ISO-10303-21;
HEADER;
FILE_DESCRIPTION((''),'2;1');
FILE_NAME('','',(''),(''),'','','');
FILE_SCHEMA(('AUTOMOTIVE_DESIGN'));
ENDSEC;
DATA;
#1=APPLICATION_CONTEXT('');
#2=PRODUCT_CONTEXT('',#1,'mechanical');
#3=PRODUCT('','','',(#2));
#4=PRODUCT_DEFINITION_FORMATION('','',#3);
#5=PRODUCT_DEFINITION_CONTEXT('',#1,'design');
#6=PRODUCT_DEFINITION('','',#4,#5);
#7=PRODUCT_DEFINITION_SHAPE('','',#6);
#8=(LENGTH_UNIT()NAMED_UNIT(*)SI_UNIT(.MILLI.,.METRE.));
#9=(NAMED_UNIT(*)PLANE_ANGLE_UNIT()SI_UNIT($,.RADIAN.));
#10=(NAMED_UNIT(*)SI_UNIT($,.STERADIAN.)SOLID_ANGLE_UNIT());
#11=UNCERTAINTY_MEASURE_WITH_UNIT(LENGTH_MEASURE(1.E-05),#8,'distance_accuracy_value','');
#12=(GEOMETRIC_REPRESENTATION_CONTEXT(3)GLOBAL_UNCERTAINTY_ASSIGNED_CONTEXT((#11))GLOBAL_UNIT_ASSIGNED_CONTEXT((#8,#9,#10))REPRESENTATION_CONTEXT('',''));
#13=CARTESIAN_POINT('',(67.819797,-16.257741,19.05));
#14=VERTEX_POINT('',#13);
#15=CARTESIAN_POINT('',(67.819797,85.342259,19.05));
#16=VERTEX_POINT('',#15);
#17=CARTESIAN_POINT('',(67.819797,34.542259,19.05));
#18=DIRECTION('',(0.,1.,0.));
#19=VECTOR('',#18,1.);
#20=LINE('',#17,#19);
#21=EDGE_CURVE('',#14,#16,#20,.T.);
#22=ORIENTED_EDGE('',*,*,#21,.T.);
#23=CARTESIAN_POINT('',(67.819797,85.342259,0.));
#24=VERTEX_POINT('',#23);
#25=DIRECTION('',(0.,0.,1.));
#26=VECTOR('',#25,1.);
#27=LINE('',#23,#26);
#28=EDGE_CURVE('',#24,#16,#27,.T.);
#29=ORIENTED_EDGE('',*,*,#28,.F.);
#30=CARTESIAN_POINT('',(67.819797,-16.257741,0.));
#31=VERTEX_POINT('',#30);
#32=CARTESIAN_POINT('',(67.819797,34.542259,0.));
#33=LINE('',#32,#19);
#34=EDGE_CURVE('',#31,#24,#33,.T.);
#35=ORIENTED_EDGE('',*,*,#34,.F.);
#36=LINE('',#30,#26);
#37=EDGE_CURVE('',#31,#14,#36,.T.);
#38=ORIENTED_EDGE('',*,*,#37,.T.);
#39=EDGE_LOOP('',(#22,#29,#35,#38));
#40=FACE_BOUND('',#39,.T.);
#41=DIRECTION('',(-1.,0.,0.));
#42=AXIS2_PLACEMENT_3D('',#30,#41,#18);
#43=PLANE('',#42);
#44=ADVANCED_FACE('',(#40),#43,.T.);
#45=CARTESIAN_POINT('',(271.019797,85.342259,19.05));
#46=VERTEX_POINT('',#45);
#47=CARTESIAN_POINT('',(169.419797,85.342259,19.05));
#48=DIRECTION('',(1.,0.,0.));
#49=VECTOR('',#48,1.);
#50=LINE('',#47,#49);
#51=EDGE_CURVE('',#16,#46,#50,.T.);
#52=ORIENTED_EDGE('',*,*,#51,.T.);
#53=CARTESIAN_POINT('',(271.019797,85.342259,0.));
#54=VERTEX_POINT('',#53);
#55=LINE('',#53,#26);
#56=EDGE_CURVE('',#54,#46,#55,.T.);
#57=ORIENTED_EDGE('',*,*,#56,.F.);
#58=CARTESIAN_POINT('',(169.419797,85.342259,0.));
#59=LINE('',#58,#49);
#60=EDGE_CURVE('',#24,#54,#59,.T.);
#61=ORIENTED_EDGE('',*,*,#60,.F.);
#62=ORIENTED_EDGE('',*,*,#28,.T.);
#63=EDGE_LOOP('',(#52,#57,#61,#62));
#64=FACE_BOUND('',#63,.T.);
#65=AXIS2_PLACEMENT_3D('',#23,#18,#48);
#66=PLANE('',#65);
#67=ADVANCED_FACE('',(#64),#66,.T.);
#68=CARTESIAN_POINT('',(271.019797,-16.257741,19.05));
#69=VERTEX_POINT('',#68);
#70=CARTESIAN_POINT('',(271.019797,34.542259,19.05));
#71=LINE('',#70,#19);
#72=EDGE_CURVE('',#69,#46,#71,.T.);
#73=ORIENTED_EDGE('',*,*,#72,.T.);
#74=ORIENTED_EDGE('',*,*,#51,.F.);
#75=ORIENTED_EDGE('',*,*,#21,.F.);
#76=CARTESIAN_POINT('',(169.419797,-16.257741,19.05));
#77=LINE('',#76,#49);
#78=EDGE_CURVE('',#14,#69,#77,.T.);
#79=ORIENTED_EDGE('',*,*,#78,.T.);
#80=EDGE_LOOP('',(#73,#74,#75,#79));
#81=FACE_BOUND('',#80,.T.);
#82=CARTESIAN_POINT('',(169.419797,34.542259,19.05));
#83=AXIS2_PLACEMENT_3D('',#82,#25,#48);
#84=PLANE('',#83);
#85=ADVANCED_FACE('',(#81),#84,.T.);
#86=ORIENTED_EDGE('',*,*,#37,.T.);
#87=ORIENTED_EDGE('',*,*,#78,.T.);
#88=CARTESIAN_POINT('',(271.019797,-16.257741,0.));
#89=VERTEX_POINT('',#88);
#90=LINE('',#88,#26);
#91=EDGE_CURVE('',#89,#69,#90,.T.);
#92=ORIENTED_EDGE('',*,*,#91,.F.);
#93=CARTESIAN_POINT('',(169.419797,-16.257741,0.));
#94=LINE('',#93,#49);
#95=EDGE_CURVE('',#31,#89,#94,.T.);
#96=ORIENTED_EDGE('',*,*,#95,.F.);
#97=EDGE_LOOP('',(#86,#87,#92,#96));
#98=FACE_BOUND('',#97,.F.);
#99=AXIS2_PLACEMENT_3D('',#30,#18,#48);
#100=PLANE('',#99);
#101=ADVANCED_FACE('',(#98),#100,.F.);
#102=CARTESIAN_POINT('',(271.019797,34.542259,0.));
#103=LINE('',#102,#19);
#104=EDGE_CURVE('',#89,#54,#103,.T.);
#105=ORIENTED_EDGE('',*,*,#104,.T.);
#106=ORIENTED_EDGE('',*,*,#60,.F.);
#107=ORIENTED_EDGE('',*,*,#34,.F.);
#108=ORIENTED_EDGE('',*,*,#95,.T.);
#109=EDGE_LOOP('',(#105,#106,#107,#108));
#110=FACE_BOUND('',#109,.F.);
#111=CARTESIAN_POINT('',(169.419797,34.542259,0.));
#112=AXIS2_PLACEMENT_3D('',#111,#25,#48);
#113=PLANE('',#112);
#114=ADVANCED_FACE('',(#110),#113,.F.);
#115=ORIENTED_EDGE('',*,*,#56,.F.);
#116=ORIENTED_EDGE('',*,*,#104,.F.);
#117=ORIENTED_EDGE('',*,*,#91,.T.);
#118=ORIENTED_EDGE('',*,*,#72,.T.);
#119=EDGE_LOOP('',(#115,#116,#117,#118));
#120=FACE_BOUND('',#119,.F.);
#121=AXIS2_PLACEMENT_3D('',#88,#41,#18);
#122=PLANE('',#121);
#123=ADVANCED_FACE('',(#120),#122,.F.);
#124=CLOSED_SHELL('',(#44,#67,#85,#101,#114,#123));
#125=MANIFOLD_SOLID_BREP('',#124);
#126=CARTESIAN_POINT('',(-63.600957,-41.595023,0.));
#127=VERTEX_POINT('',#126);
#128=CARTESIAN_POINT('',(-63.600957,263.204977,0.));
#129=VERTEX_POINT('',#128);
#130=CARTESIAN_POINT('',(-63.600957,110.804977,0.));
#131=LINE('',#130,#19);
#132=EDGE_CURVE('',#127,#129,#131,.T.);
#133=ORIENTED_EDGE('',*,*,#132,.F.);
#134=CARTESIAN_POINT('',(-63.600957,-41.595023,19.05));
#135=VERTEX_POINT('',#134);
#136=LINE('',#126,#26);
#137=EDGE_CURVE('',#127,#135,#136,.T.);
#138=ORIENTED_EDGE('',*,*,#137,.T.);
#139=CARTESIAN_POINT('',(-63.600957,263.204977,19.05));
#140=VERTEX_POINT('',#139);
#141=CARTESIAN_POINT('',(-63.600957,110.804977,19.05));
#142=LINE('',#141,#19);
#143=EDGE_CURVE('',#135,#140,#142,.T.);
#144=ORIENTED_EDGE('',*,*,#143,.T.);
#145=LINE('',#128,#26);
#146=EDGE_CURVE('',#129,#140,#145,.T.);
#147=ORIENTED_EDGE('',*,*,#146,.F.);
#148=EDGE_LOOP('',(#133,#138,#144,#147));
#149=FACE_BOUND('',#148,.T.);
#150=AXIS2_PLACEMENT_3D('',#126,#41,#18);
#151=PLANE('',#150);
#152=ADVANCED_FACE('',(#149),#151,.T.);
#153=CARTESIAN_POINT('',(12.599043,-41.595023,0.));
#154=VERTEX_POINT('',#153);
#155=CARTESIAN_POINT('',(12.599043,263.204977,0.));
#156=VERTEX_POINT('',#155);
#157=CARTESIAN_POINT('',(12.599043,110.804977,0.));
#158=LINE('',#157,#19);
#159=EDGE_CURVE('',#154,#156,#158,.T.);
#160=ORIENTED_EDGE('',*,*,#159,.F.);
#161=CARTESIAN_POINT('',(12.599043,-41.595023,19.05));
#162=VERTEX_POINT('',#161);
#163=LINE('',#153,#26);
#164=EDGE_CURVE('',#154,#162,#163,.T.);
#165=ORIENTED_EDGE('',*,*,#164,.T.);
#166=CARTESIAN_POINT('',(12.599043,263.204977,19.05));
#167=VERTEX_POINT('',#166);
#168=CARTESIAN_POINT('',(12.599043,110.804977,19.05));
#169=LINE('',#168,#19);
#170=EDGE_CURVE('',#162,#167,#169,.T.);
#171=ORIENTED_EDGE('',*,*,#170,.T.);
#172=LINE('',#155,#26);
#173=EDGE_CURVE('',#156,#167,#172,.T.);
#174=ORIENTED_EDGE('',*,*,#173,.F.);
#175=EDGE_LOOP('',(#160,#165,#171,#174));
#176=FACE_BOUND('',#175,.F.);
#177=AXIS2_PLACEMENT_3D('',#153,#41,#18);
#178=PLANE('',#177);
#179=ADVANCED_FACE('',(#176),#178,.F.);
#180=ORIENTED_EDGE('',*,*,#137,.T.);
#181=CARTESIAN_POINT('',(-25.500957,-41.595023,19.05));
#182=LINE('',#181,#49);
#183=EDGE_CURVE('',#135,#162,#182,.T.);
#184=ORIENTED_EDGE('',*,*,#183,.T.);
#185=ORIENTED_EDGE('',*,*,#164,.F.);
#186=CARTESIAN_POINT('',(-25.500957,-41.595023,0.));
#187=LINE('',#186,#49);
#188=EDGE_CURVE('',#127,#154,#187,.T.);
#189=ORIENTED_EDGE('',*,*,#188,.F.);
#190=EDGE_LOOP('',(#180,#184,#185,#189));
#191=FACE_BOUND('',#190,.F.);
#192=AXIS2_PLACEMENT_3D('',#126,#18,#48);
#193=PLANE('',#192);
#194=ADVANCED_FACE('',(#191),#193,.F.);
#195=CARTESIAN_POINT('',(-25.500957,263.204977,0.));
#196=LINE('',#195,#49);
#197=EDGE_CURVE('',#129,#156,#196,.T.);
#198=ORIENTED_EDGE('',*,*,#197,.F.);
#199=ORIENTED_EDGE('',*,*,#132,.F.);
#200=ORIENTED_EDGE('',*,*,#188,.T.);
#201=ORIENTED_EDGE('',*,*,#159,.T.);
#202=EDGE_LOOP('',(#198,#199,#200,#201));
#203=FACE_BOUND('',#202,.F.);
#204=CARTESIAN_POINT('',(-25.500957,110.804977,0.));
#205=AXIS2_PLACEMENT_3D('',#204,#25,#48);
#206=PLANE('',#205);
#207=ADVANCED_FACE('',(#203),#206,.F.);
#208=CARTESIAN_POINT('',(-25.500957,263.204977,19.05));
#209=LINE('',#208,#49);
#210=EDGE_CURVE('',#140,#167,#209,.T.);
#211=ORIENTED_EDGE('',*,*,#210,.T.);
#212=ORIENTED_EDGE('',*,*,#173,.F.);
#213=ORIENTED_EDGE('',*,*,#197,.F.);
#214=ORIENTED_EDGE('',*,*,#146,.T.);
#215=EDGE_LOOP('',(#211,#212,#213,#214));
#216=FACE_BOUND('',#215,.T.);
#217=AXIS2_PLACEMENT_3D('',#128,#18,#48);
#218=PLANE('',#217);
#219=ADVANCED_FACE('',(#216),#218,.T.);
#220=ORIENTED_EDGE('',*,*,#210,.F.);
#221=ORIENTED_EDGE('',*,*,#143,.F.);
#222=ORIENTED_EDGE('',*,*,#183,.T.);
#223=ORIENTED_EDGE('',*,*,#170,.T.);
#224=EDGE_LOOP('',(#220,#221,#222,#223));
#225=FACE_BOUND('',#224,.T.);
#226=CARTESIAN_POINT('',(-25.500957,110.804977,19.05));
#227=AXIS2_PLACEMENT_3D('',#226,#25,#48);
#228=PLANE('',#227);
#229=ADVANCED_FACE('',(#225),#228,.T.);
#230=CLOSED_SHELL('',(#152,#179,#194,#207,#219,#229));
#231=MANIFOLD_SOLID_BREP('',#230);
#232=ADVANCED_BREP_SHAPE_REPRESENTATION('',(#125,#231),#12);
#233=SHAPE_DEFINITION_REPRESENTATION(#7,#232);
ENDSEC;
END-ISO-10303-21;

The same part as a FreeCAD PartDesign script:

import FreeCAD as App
import Part
import Sketcher

V = App.Vector
Q = App.Units.Quantity


def add_polygon(sketch, points):
    """Adds a closed chain of lines whose ends are joined by coincident constraints."""
    first, n = sketch.GeometryCount, len(points)
    for a, b in zip(points, points[1:] + points[:1]):
        sketch.addGeometry(Part.LineSegment(App.Vector(*a, 0), App.Vector(*b, 0)), False)
    for i in range(n):
        sketch.addConstraint(Sketcher.Constraint("Coincident", first + i, 2, first + (i + 1) % n, 1))

doc = App.newDocument("Part")
body = doc.addObject("PartDesign::Body", "Body")
body.AllowCompound = True

# Sketch on XY plane
sketch1 = body.newObject("Sketcher::SketchObject", "Sketch")
sketch1.AttachmentSupport = (doc.getObject("XY_Plane"), [""])
sketch1.MapMode = "FlatFace"
add_polygon(sketch1, [(-64, 263), (-64, -42), (13, -42), (13, 263)])  # lines 0-3
add_polygon(sketch1, [(68, 85), (68, -16), (271, -16), (271, 85)])  # lines 4-7
sketch1.addConstraint(Sketcher.Constraint("Vertical", 0))
sketch1.addConstraint(Sketcher.Constraint("Horizontal", 1))
sketch1.addConstraint(Sketcher.Constraint("Vertical", 2))
sketch1.addConstraint(Sketcher.Constraint("Horizontal", 3))
sketch1.addConstraint(Sketcher.Constraint("Vertical", 4))
sketch1.addConstraint(Sketcher.Constraint("Horizontal", 5))
sketch1.addConstraint(Sketcher.Constraint("Vertical", 6))
sketch1.addConstraint(Sketcher.Constraint("Horizontal", 7))
sketch1.addConstraint(Sketcher.Constraint("DistanceX", 1, 1, 1, 2, Q("3 in")))
sketch1.addConstraint(Sketcher.Constraint("DistanceX", 5, 1, 5, 2, Q("8 in")))
sketch1.addConstraint(Sketcher.Constraint("DistanceY", 0, 2, 0, 1, Q("12 in")))
sketch1.addConstraint(Sketcher.Constraint("DistanceY", 4, 2, 4, 1, Q("4 in")))
sketch1.addConstraint(Sketcher.Constraint("DistanceY", 4, 2, -1, 1, Q("16.257741 mm")))
sketch1.addConstraint(Sketcher.Constraint("DistanceY", 1, 2, 4, 2, Q("25.337282 mm")))
sketch1.addConstraint(Sketcher.Constraint("DistanceX", 0, 2, -1, 1, Q("63.600957 mm")))
sketch1.addConstraint(Sketcher.Constraint("DistanceX", -1, 1, 4, 2, Q("67.819797 mm")))
pad1 = body.newObject("PartDesign::Pad", "Pad")
pad1.Profile = sketch1
pad1.Length = Q("0.75 in")

doc.recompute()
